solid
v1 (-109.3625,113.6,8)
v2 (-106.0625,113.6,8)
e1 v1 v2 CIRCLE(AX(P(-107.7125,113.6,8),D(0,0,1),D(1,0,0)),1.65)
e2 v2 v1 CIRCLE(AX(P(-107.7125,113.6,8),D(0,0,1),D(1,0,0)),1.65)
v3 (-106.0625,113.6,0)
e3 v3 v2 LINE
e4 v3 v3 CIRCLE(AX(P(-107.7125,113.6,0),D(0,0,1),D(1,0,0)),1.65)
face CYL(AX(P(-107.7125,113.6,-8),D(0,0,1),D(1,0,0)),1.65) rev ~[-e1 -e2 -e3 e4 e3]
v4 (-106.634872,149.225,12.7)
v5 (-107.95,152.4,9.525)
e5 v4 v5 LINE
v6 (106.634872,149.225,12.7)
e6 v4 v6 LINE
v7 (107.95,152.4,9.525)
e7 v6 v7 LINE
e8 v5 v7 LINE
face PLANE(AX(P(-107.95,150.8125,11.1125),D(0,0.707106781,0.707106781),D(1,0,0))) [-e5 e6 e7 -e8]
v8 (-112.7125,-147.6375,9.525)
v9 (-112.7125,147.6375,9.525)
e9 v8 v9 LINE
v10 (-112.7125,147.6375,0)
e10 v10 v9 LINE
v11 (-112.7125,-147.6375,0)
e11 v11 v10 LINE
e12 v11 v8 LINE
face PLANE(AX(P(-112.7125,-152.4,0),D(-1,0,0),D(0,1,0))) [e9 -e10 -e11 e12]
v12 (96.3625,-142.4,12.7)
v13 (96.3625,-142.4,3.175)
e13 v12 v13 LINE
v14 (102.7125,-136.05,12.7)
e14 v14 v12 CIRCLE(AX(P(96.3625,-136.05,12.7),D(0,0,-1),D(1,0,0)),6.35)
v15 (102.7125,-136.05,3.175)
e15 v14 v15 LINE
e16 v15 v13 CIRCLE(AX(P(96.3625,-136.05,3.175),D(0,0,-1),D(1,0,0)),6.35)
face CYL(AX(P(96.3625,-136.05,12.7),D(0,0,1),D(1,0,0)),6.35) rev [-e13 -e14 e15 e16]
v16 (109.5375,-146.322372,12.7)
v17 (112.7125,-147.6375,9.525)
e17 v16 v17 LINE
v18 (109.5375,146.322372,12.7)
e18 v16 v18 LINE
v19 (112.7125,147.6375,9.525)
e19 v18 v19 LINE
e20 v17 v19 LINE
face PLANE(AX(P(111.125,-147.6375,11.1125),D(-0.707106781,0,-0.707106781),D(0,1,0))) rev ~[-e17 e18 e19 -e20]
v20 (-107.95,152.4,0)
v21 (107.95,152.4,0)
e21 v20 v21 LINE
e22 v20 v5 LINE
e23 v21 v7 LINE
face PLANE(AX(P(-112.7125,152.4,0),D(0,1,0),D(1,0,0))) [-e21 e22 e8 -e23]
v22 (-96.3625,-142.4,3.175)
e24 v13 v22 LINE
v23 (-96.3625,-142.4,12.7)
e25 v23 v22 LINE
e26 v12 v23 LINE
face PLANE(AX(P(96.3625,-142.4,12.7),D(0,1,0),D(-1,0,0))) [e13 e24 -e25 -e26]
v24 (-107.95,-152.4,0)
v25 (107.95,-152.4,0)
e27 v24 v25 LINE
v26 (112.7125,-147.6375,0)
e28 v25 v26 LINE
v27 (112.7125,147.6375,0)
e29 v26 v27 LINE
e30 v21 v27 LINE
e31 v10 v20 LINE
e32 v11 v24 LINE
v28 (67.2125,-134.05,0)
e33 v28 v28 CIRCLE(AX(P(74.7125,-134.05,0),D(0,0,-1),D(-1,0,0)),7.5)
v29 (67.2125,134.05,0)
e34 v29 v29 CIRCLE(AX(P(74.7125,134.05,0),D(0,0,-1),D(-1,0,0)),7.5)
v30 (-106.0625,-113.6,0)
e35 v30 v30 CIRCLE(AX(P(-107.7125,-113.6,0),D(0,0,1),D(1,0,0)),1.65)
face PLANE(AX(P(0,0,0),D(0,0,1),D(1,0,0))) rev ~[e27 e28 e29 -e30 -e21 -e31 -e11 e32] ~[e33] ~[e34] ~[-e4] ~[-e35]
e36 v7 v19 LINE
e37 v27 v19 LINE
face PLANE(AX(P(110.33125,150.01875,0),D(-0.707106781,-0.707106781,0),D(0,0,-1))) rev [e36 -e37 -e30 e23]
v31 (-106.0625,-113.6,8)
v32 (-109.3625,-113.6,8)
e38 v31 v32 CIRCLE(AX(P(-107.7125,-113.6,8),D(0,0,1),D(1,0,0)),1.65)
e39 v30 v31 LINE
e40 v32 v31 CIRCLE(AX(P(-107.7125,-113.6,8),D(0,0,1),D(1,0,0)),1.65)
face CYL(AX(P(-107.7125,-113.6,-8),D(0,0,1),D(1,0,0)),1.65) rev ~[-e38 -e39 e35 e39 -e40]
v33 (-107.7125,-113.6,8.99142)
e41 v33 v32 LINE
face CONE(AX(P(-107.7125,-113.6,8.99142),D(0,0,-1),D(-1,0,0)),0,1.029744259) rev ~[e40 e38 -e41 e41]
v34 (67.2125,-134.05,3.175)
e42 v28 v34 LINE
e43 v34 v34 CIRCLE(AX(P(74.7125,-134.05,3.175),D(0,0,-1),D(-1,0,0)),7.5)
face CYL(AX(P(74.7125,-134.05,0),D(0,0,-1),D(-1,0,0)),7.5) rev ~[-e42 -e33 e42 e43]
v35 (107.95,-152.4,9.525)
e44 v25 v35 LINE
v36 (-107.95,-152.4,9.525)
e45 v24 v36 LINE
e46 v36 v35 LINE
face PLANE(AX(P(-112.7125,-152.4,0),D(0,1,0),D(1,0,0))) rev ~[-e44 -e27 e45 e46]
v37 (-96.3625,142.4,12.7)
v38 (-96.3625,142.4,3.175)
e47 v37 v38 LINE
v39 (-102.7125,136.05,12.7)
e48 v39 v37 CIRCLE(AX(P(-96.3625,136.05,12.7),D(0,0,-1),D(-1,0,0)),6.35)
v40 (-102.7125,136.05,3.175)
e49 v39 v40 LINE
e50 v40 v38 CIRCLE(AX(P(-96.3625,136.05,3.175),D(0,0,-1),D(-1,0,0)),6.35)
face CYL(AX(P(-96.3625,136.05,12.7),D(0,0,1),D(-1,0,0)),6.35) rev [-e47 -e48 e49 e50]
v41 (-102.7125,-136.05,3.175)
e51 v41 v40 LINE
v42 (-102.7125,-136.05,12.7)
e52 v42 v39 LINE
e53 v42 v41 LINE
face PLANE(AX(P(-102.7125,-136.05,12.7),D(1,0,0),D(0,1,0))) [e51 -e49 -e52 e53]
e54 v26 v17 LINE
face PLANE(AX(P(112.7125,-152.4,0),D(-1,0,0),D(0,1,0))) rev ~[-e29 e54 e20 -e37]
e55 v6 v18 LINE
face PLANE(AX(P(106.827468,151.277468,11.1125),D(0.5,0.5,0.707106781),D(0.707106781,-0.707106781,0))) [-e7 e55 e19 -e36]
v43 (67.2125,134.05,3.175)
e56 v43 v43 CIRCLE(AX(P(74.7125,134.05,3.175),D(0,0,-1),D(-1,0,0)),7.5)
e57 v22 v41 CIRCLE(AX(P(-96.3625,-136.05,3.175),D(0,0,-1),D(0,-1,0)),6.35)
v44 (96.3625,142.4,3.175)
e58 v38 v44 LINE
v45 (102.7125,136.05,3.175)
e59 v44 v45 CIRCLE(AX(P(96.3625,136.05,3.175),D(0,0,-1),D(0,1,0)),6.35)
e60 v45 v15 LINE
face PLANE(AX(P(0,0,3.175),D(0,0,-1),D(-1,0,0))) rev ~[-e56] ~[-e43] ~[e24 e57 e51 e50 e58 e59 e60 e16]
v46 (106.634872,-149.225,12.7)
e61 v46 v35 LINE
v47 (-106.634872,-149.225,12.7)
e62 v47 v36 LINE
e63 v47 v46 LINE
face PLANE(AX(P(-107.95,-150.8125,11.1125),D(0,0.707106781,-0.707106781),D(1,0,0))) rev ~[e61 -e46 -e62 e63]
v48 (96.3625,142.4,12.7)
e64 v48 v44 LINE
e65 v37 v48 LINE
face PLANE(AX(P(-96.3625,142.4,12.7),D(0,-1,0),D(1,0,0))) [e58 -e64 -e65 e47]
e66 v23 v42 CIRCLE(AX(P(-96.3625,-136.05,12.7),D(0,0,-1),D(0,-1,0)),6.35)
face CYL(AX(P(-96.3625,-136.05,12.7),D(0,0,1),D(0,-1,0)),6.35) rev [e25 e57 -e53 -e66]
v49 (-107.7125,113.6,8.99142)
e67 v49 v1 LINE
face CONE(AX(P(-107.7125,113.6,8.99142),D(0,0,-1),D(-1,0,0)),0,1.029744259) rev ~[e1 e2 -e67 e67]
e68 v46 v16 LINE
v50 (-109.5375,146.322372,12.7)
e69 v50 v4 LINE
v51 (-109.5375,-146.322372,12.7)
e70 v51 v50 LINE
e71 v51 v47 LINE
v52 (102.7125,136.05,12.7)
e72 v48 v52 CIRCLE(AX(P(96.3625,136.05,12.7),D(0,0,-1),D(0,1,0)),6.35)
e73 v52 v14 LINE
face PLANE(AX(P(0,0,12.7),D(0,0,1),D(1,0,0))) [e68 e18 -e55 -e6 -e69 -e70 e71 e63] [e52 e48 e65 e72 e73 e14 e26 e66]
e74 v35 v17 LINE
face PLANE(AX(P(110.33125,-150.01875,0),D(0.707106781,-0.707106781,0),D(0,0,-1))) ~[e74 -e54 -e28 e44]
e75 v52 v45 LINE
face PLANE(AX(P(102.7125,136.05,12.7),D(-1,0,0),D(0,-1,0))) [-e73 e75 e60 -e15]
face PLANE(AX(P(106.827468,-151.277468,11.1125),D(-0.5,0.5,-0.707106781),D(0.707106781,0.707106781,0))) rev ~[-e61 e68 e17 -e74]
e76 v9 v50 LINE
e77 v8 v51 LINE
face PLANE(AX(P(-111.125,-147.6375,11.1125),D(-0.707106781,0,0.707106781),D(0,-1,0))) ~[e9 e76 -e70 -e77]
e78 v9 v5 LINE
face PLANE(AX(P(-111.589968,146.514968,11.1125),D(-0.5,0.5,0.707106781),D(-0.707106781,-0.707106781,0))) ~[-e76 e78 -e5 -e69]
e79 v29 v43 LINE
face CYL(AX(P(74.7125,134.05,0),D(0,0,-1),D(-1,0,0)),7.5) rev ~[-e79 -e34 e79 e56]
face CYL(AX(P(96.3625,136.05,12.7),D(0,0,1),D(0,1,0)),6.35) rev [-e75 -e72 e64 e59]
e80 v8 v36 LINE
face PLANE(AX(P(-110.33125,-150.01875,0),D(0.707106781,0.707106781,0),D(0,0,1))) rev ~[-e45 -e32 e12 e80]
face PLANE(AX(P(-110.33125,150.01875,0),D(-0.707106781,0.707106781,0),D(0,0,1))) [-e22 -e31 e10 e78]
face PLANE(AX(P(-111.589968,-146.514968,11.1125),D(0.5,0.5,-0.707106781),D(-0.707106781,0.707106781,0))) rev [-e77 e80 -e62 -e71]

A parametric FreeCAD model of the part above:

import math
import FreeCAD as App
import Part
import Sketcher
from FreeCAD import Vector
Q = App.Units.Quantity


def edges_at(feature, points):
    """Names of the edges that pass closest to the given points."""
    edges = feature.Shape.Edges
    near = lambda p: min(range(len(edges)), key=lambda i: edges[i].distToShape(Part.Vertex(*p))[0])
    return sorted({f"Edge{near(p) + 1}" for p in points})

doc = App.newDocument("Part")
params = doc.addObject("Spreadsheet::Sheet", "Params")
for row, (alias, value) in enumerate([
    ("sketch1_height", "12 in"),
    ("sketch1_width", "8.875 in"),
    ("pad1_length", "0.5 in"),
    ("sketch2_radius", "0.25 in"),
    ("pocket1_length", "0.375 in"),
    ("hole_diameter", "3.3 mm"),
    ("hole_depth", "8 mm"),
    ("chamfer_size", "0.1875 in"),
    ("chamfer2_size", "0.125 in"),
], start=1):
    params.set(f"A{row}", alias)
    params.set(f"B{row}", "=" + value)
    params.setAlias(f"B{row}", alias)

body = doc.addObject("PartDesign::Body", "Body")

# Sketch on XY plane
sketch1 = body.newObject("Sketcher::SketchObject", "Sketch")
sketch1.AttachmentSupport = (doc.getObject("XY_Plane"), [""])
sketch1.MapMode = "FlatFace"
sketch1.addGeometry([
    Part.LineSegment(Vector(-113, 152, 0), Vector(-113, -152, 0)),
    Part.LineSegment(Vector(-113, -152, 0), Vector(113, -152, 0)),
    Part.LineSegment(Vector(113, -152, 0), Vector(113, 152, 0)),
    Part.LineSegment(Vector(113, 152, 0), Vector(-113, 152, 0)),
], False)
sketch1.addConstraint([
    Sketcher.Constraint("Coincident", 0, 2, 1, 1),
    Sketcher.Constraint("Coincident", 1, 2, 2, 1),
    Sketcher.Constraint("Coincident", 2, 2, 3, 1),
    Sketcher.Constraint("Coincident", 3, 2, 0, 1),
    Sketcher.Constraint("Vertical", 0),
    Sketcher.Constraint("Horizontal", 1),
    Sketcher.Constraint("Vertical", 2),
    Sketcher.Constraint("Horizontal", 3),
    Sketcher.Constraint("Symmetric", 0, 2, 2, 2, -1, 1),
    Sketcher.Constraint("DistanceY", 0, 2, 0, 1, Q("12 in")),
    Sketcher.Constraint("DistanceX", 1, 1, 1, 2, Q("8.875 in")),
])
sketch1.setExpression("Constraints[9]", "Params.sketch1_height")
sketch1.setExpression("Constraints[10]", "Params.sketch1_width")
pad1 = body.newObject("PartDesign::Pad", "Pad")
pad1.Profile = sketch1
pad1.setExpression("Length", "Params.pad1_length")

# Sketch on XY plane
sketch2 = body.newObject("Sketcher::SketchObject", "Sketch001")
sketch2.AttachmentSupport = (doc.getObject("XY_Plane"), [""])
sketch2.MapMode = "FlatFace"
sketch2.AttachmentOffset = App.Placement(Vector(0, 0, 0.5 * 25.4), App.Rotation())
sketch2.addGeometry([
    Part.LineSegment(Vector(-96, -142, 0), Vector(96, -142, 0)),  # 0
    Part.ArcOfCircle(Part.Circle(Vector(96, -136, 0), Vector(0, 0, 1), 6), math.radians(-90), math.radians(0)),  # 1
    Part.LineSegment(Vector(103, -136, 0), Vector(103, 136, 0)),  # 2
    Part.ArcOfCircle(Part.Circle(Vector(96, 136, 0), Vector(0, 0, 1), 6), math.radians(0), math.radians(90)),  # 3
    Part.LineSegment(Vector(96, 142, 0), Vector(-96, 142, 0)),  # 4
    Part.ArcOfCircle(Part.Circle(Vector(-96, 136, 0), Vector(0, 0, 1), 6), math.radians(90), math.radians(180)),  # 5
    Part.LineSegment(Vector(-103, 136, 0), Vector(-103, -136, 0)),  # 6
    Part.ArcOfCircle(Part.Circle(Vector(-96, -136, 0), Vector(0, 0, 1), 6), math.radians(180), math.radians(270)),  # 7
], False)
sketch2.addConstraint([
    Sketcher.Constraint("Tangent", 0, 2, 1, 1),
    Sketcher.Constraint("Tangent", 1, 2, 2, 1),
    Sketcher.Constraint("Tangent", 2, 2, 3, 1),
    Sketcher.Constraint("Tangent", 3, 2, 4, 1),
    Sketcher.Constraint("Tangent", 4, 2, 5, 1),
    Sketcher.Constraint("Tangent", 5, 2, 6, 1),
    Sketcher.Constraint("Tangent", 6, 2, 7, 1),
    Sketcher.Constraint("Tangent", 7, 2, 0, 1),
    Sketcher.Constraint("Horizontal", 0),
    Sketcher.Constraint("Vertical", 2),
    Sketcher.Constraint("Horizontal", 4),
    Sketcher.Constraint("Vertical", 6),
    Sketcher.Constraint("Equal", 1, 3),
    Sketcher.Constraint("Equal", 3, 5),
    Sketcher.Constraint("Equal", 5, 7),
    Sketcher.Constraint("Symmetric", 1, 3, 5, 3, -1, 1),
    Sketcher.Constraint("Radius", 1, Q("0.25 in")),
    Sketcher.Constraint("DistanceX", 0, 1, 0, 2, Q("192.725 mm")),
    Sketcher.Constraint("DistanceY", 2, 1, 2, 2, Q("272.1 mm")),
])
sketch2.setExpression("Constraints[16]", "Params.sketch2_radius")
pocket1 = body.newObject("PartDesign::Pocket", "Pocket")
pocket1.Profile = sketch2
pocket1.setExpression("Length", "Params.pocket1_length")

# Sketch on XY plane
sketch3 = body.newObject("Sketcher::SketchObject", "Sketch002")
sketch3.AttachmentSupport = (doc.getObject("XY_Plane"), [""])
sketch3.MapMode = "FlatFace"
sketch3.addGeometry([
    Part.Circle(Vector(75, -134, 0), Vector(0, 0, 1), 8),
    Part.Circle(Vector(75, 134, 0), Vector(0, 0, 1), 8),
], False)
sketch3.addConstraint([
    Sketcher.Constraint("Equal", 0, 1),
    Sketcher.Constraint("Symmetric", 0, 3, 1, 3, -1),
    Sketcher.Constraint("Diameter", 0, Q("15 mm")),
    Sketcher.Constraint("DistanceX", -1, 1, 0, 3, Q("74.7125 mm")),
    Sketcher.Constraint("DistanceY", 0, 3, -1, 1, Q("134.05 mm")),
])
pocket2 = body.newObject("PartDesign::Pocket", "Pocket001")
pocket2.Profile = sketch3
pocket2.Type = "ThroughAll"
pocket2.Reversed = True

# Sketch on XY plane
sketch4 = body.newObject("Sketcher::SketchObject", "Sketch003")
sketch4.AttachmentSupport = (doc.getObject("XY_Plane"), [""])
sketch4.MapMode = "FlatFace"
sketch4.addGeometry([
    Part.Circle(Vector(-107.7, -113.6, 0), Vector(0, 0, 1), 1.6),
    Part.Circle(Vector(-107.7, 113.6, 0), Vector(0, 0, 1), 1.6),
], False)
sketch4.addConstraint([
    Sketcher.Constraint("Equal", 0, 1),
    Sketcher.Constraint("Symmetric", 0, 3, 1, 3, -1),
    Sketcher.Constraint("Diameter", 0, Q("3.3 mm")),
    Sketcher.Constraint("DistanceX", 0, 3, -1, 1, Q("107.7125 mm")),
    Sketcher.Constraint("DistanceY", 0, 3, -1, 1, Q("113.6 mm")),
])
doc.recompute()
hole = body.newObject("PartDesign::Hole", "Hole")
hole.Profile = sketch4
hole.ThreadType = "None"
hole.setExpression("Diameter", "Params.hole_diameter")
hole.DepthType = "Dimension"
hole.setExpression("Depth", "Params.hole_depth")
hole.DrillPoint = "Angled"
hole.DrillPointAngle = 118
hole.Reversed = True
doc.recompute()

chamfer = body.newObject("PartDesign::Chamfer", "Chamfer")
chamfer.Base = (hole, edges_at(hole, [
    (-112.713, 152.4, 6.35),
    (112.713, 152.4, 6.35),
    (112.713, -152.4, 6.35),
    (-112.713, -152.4, 6.35),
]))
chamfer.setExpression("Size", "Params.chamfer_size")
doc.recompute()

chamfer2 = body.newObject("PartDesign::Chamfer", "Chamfer001")
chamfer2.Base = (chamfer, edges_at(chamfer, [
    (-112.713, 0, 12.7),
    (0, 152.4, 12.7),
    (0, -152.4, 12.7),
    (112.713, 0, 12.7),
    (-110.331, -150.019, 12.7),
    (110.331, -150.019, 12.7),
    (110.331, 150.019, 12.7),
    (-110.331, 150.019, 12.7),
]))
chamfer2.setExpression("Size", "Params.chamfer2_size")

doc.recompute()
